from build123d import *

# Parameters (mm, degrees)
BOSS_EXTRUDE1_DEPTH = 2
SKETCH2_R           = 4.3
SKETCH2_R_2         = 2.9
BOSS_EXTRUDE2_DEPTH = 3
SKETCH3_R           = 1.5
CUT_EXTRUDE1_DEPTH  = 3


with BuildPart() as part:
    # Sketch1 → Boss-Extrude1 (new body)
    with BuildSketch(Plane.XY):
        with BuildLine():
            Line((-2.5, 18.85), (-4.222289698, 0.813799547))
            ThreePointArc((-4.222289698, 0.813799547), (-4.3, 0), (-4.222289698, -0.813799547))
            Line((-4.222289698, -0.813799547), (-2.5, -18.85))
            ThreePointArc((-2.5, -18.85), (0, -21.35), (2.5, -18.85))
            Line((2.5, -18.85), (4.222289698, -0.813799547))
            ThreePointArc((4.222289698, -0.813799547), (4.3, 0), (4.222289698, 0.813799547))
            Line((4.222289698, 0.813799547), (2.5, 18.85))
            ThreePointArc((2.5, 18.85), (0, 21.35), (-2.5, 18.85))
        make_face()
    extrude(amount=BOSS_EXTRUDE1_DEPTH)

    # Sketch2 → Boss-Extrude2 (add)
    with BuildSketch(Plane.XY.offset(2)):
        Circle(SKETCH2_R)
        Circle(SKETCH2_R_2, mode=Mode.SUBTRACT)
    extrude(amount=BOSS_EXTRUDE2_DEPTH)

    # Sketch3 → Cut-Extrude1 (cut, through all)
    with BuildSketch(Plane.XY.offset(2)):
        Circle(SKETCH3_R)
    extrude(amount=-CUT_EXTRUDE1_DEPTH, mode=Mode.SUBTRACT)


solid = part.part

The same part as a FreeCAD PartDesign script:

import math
import FreeCAD as App
import Part
import Sketcher

doc = App.newDocument("Part")
body = doc.addObject("PartDesign::Body", "Body")

sketch1 = doc.addObject("Sketcher::SketchObject", "Sketch")
body.addObject(sketch1)
sketch1.AttachmentSupport = (doc.XY_Plane, [""])
sketch1.MapMode = "FlatFace"
sketch1.addGeometry(Part.LineSegment(App.Vector(-2.5, 18.9, 0), App.Vector(-4.2, 0.8, 0)), False)
sketch1.addGeometry(Part.ArcOfCircle(Part.Circle(App.Vector(0, 0, 0), App.Vector(0, 0, 1), 4.3), math.radians(169), math.radians(191)), False)
sketch1.addGeometry(Part.LineSegment(App.Vector(-4.2, -0.8, 0), App.Vector(-2.5, -18.9, 0)), False)
sketch1.addGeometry(Part.ArcOfCircle(Part.Circle(App.Vector(0, -18.9, 0), App.Vector(0, 0, 1), 2.5), math.radians(180), math.radians(360)), False)
sketch1.addGeometry(Part.LineSegment(App.Vector(2.5, -18.9, 0), App.Vector(4.2, -0.8, 0)), False)
sketch1.addGeometry(Part.ArcOfCircle(Part.Circle(App.Vector(0, 0, 0), App.Vector(0, 0, 1), 4.3), math.radians(-11), math.radians(11)), False)
sketch1.addGeometry(Part.LineSegment(App.Vector(4.2, 0.8, 0), App.Vector(2.5, 18.9, 0)), False)
sketch1.addGeometry(Part.ArcOfCircle(Part.Circle(App.Vector(0, 18.9, 0), App.Vector(0, 0, 1), 2.5), math.radians(0), math.radians(180)), False)
sketch1.addConstraint(Sketcher.Constraint("Coincident", 0, 2, 1, 1))
sketch1.addConstraint(Sketcher.Constraint("Coincident", 1, 2, 2, 1))
sketch1.addConstraint(Sketcher.Constraint("Coincident", 2, 2, 3, 1))
sketch1.addConstraint(Sketcher.Constraint("Coincident", 3, 2, 4, 1))
sketch1.addConstraint(Sketcher.Constraint("Coincident", 4, 2, 5, 1))
sketch1.addConstraint(Sketcher.Constraint("Coincident", 5, 2, 6, 1))
sketch1.addConstraint(Sketcher.Constraint("Coincident", 6, 2, 7, 1))
sketch1.addConstraint(Sketcher.Constraint("Coincident", 7, 2, 0, 1))
sketch1.addConstraint(Sketcher.Constraint("Coincident", 1, 3, -1, 1))
sketch1.addConstraint(Sketcher.Constraint("Coincident", 5, 3, -1, 1))
sketch1.addConstraint(Sketcher.Constraint("Equal", 1, 5))
sketch1.addConstraint(Sketcher.Constraint("Equal", 3, 7))
sketch1.addConstraint(Sketcher.Constraint("Symmetric", 3, 3, 7, 3, -1, 1))
sketch1.addConstraint(Sketcher.Constraint("Symmetric", 2, 2, 3, 2, -2))
sketch1.addConstraint(Sketcher.Constraint("Parallel", 0, 4))
sketch1.addConstraint(Sketcher.Constraint("Parallel", 2, 6))
sketch1.addConstraint(Sketcher.Constraint("Horizontal", 3, 3, 2, 2))
sketch1.addConstraint(Sketcher.Constraint("Horizontal", 1, 2, 4, 2))
sketch1.addConstraint(Sketcher.Constraint("Horizontal", 0, 2, 5, 2))
sketch1.addConstraint(Sketcher.Constraint("Horizontal", 7, 3, 6, 2))
sketch1.addConstraint(Sketcher.Constraint("Radius", 1, 4.3))
sketch1.addConstraint(Sketcher.Constraint("Radius", 3, 2.5))
sketch1.addConstraint(Sketcher.Constraint("DistanceY", 3, 3, 7, 3, 37.7))
sketch1.addConstraint(Sketcher.Constraint("DistanceY", -1, 1, 0, 2, 0.8138))
pad1 = doc.addObject("PartDesign::Pad", "Pad")
body.addObject(pad1)
pad1.Profile = sketch1
pad1.Length = 2

sketch2 = doc.addObject("Sketcher::SketchObject", "Sketch001")
body.addObject(sketch2)
sketch2.AttachmentSupport = (doc.XY_Plane, [""])
sketch2.MapMode = "FlatFace"
sketch2.AttachmentOffset = App.Placement(App.Vector(0, 0, 2), App.Rotation())
sketch2.addGeometry(Part.Circle(App.Vector(0, 0, 0), App.Vector(0, 0, 1), 4.3), False)
sketch2.addGeometry(Part.Circle(App.Vector(0, 0, 0), App.Vector(0, 0, 1), 2.9), False)
sketch2.addConstraint(Sketcher.Constraint("Coincident", 0, 3, -1, 1))
sketch2.addConstraint(Sketcher.Constraint("Coincident", 1, 3, -1, 1))
sketch2.addConstraint(Sketcher.Constraint("Diameter", 0, 8.6))
sketch2.addConstraint(Sketcher.Constraint("Diameter", 1, 5.8))
pad2 = doc.addObject("PartDesign::Pad", "Pad001")
body.addObject(pad2)
pad2.Profile = sketch2
pad2.Length = 3

sketch3 = doc.addObject("Sketcher::SketchObject", "Sketch002")
body.addObject(sketch3)
sketch3.AttachmentSupport = (doc.XY_Plane, [""])
sketch3.MapMode = "FlatFace"
sketch3.AttachmentOffset = App.Placement(App.Vector(0, 0, 2), App.Rotation())
sketch3.addGeometry(Part.Circle(App.Vector(0, 0, 0), App.Vector(0, 0, 1), 1.5), False)
sketch3.addConstraint(Sketcher.Constraint("Coincident", 0, 3, -1, 1))
sketch3.addConstraint(Sketcher.Constraint("Diameter", 0, 3.0))
pocket1 = doc.addObject("PartDesign::Pocket", "Pocket")
body.addObject(pocket1)
pocket1.Profile = sketch3
pocket1.Type = "ThroughAll"

doc.recompute()
